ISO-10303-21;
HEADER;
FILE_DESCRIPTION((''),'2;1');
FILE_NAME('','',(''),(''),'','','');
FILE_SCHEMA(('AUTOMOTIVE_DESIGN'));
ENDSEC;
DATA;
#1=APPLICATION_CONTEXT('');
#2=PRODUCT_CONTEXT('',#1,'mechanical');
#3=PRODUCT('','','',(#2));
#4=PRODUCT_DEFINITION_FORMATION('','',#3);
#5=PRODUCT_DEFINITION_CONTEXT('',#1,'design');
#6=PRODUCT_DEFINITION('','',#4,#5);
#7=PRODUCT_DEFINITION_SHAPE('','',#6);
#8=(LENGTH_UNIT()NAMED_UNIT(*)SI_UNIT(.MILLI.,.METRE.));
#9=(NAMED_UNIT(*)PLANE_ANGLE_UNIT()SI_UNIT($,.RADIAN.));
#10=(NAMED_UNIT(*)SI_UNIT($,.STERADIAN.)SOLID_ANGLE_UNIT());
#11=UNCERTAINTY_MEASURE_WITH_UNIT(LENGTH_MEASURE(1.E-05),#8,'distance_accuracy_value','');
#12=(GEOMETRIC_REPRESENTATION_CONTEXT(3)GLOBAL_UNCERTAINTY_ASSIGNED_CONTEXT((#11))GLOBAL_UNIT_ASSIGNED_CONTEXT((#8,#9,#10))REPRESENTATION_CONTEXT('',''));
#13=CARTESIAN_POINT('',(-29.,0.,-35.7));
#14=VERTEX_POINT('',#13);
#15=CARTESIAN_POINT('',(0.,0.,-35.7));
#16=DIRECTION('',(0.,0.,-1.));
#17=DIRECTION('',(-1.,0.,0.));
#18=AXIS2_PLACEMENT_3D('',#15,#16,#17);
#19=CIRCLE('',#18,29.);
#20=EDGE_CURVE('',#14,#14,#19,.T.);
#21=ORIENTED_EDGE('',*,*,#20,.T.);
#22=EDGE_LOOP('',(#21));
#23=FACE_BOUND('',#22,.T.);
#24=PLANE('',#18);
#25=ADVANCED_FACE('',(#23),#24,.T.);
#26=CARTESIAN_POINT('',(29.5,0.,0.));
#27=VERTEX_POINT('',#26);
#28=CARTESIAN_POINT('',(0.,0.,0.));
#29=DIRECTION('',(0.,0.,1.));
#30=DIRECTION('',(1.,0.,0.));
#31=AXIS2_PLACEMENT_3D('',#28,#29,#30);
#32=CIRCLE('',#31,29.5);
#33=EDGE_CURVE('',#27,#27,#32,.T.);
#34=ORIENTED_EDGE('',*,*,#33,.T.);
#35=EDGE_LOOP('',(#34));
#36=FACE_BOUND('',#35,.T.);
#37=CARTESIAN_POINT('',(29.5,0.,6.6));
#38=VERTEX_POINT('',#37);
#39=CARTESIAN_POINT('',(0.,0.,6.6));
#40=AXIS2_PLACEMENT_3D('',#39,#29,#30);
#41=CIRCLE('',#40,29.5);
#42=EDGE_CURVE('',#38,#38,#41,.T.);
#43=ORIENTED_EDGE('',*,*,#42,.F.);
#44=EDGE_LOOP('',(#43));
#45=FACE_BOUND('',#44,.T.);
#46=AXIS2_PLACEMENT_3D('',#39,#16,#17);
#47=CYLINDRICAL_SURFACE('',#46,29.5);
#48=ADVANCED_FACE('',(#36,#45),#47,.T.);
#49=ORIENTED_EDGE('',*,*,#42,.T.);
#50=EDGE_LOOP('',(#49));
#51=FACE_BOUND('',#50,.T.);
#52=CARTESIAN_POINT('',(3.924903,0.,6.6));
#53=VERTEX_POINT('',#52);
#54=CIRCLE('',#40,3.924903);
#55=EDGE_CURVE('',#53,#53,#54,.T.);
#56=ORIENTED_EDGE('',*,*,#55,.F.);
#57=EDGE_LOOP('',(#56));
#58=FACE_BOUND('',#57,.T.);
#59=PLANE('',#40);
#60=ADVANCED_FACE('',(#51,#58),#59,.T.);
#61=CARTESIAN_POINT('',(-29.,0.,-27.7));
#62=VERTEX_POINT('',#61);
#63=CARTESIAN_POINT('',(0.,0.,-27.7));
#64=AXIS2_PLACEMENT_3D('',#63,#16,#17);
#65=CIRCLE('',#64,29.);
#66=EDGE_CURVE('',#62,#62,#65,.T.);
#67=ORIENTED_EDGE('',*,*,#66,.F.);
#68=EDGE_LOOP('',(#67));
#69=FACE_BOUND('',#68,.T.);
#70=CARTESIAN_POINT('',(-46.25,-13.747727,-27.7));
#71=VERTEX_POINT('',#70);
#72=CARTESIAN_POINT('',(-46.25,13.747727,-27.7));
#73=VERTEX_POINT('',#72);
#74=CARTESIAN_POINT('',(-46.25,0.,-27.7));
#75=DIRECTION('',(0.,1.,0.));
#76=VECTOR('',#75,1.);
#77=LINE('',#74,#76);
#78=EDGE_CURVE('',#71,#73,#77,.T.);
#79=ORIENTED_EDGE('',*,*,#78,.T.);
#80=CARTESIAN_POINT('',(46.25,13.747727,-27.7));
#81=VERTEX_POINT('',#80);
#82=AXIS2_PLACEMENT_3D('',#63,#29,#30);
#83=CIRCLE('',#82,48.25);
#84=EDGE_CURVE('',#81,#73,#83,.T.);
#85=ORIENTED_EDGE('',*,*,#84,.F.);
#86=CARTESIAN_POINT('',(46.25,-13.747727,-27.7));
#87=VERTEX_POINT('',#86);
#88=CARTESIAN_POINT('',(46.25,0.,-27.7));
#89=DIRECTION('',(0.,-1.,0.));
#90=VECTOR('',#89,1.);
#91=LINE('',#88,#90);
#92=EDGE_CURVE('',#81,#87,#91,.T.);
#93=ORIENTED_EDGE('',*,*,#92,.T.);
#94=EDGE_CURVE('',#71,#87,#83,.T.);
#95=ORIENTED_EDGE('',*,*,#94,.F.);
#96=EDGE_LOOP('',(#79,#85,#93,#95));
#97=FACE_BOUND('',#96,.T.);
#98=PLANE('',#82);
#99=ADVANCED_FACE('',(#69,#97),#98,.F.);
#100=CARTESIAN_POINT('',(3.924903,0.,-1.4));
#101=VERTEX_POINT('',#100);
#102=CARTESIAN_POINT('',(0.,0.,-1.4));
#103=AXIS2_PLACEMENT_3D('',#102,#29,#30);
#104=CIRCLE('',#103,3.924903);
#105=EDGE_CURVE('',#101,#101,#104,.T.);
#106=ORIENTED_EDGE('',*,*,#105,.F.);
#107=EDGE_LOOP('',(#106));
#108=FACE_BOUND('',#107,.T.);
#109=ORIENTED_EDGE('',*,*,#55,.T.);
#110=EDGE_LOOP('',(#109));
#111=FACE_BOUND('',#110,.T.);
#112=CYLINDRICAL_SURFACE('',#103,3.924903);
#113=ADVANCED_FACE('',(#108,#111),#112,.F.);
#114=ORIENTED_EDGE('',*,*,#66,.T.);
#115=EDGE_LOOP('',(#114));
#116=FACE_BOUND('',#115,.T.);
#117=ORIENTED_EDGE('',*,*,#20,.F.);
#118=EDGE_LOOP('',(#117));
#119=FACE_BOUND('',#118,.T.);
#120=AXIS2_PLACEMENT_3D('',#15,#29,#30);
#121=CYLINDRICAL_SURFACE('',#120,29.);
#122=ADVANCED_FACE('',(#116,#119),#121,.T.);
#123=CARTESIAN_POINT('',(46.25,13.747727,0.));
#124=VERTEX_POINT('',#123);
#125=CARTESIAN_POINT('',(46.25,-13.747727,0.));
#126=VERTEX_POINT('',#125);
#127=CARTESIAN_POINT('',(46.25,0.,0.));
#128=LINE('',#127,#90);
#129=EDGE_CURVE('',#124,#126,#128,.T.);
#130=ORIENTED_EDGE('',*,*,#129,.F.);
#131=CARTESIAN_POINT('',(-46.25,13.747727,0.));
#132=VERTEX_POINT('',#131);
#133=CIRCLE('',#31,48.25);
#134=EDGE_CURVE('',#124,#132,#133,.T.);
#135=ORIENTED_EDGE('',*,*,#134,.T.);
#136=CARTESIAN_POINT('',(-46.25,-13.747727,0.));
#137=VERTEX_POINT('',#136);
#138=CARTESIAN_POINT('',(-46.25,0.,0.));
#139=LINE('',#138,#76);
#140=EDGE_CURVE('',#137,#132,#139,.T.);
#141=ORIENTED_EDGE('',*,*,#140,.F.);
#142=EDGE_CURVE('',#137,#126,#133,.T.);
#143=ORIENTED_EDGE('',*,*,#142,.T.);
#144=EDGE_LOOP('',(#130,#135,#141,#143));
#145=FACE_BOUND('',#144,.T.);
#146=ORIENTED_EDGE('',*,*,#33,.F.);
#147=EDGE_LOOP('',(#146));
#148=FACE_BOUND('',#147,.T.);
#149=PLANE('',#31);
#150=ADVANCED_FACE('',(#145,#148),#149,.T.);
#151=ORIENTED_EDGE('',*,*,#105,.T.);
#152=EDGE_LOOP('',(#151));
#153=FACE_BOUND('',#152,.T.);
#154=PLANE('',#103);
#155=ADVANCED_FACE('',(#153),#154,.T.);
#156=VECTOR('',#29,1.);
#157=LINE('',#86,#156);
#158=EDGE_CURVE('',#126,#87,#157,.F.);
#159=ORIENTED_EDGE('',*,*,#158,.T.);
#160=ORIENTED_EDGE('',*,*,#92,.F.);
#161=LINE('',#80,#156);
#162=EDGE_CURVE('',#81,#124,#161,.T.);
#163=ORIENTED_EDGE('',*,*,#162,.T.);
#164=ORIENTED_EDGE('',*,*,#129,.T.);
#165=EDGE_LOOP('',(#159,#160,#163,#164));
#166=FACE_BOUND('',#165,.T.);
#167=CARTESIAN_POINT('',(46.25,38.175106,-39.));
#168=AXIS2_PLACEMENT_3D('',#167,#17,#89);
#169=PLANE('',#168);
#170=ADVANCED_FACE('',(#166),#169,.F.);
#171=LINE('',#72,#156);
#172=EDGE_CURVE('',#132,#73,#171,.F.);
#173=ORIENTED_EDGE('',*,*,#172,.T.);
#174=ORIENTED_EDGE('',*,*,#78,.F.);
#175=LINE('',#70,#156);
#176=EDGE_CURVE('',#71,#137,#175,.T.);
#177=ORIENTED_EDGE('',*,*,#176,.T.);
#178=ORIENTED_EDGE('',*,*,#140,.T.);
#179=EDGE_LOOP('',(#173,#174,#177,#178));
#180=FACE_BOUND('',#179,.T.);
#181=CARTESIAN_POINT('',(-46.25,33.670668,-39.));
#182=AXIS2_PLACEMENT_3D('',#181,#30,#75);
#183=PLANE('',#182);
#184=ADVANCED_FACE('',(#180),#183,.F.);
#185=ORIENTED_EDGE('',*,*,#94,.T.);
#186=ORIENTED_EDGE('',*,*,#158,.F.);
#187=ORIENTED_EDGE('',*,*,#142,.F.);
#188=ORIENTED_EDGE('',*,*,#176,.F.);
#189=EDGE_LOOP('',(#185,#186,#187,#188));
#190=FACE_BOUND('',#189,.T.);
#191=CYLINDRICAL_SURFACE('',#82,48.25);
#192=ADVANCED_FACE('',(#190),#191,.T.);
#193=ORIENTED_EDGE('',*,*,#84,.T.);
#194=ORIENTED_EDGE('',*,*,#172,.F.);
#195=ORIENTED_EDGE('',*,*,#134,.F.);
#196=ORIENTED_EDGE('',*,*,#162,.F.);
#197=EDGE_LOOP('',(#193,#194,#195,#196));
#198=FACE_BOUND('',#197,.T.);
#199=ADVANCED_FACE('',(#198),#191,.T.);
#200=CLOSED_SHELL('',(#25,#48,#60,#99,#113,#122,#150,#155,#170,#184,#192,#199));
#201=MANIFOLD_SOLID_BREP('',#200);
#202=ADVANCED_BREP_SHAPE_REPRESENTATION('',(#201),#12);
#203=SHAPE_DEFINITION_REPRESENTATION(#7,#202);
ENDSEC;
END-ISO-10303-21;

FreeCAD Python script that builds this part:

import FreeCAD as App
import Part
import Sketcher

V = App.Vector
Q = App.Units.Quantity

doc = App.newDocument("Part")
body = doc.addObject("PartDesign::Body", "Body")

sketch1 = body.newObject("Sketcher::SketchObject", "Sketch")
sketch1.AttachmentSupport = (doc.getObject("XY_Plane"), [""])
sketch1.MapMode = "FlatFace"
sketch1.addGeometry(Part.Circle(V(0, 0, 0), V(0, 0, 1), 48), False)
sketch1.addConstraint([
    Sketcher.Constraint("Coincident", 0, 3, -1, 1),
    Sketcher.Constraint("Diameter", 0, Q("96.5 mm")),
])
pad1 = body.newObject("PartDesign::Pad", "Pad")
pad1.Profile = sketch1
pad1.Length = 27.7
pad1.Reversed = True

sketch2 = body.newObject("Sketcher::SketchObject", "Sketch001")
sketch2.AttachmentSupport = (doc.getObject("XY_Plane"), [""])
sketch2.MapMode = "FlatFace"
sketch2.addGeometry(Part.Circle(V(0, 0, 0), V(0, 0, 1), 30), False)
sketch2.addConstraint([
    Sketcher.Constraint("Coincident", 0, 3, -1, 1),
    Sketcher.Constraint("Diameter", 0, Q("59 mm")),
])
pad2 = body.newObject("PartDesign::Pad", "Pad001")
pad2.Profile = sketch2
pad2.Length = 6.6

sketch3 = body.newObject("Sketcher::SketchObject", "Sketch002")
sketch3.AttachmentSupport = (doc.getObject("XY_Plane"), [""])
sketch3.MapMode = "FlatFace"
sketch3.AttachmentOffset = App.Placement(V(0, 0, -27.7), App.Rotation())
sketch3.addGeometry(Part.Circle(V(0, 0, 0), V(0, 0, 1), 29), False)
sketch3.addConstraint([
    Sketcher.Constraint("Coincident", 0, 3, -1, 1),
    Sketcher.Constraint("Diameter", 0, Q("58 mm")),
])
pad3 = body.newObject("PartDesign::Pad", "Pad002")
pad3.Profile = sketch3
pad3.Length = 8
pad3.Reversed = True

sketch4 = body.newObject("Sketcher::SketchObject", "Sketch003")
sketch4.AttachmentSupport = (doc.getObject("XY_Plane"), [""])
sketch4.MapMode = "FlatFace"
sketch4.AttachmentOffset = App.Placement(V(0, 0, 6.6), App.Rotation())
sketch4.addGeometry(Part.Circle(V(0, 0, 0), V(0, 0, 1), 3.9), False)
sketch4.addConstraint([
    Sketcher.Constraint("Coincident", 0, 3, -1, 1),
    Sketcher.Constraint("Diameter", 0, Q("7.849807 mm")),
])
pocket1 = body.newObject("PartDesign::Pocket", "Pocket")
pocket1.Profile = sketch4
pocket1.Length = 8

sketch5 = body.newObject("Sketcher::SketchObject", "Sketch004")
sketch5.AttachmentSupport = (doc.getObject("XY_Plane"), [""])
sketch5.MapMode = "FlatFace"
sketch5.addGeometry([
    Part.LineSegment(V(-60, 34, 0), V(-60, -32, 0)),
    Part.LineSegment(V(-60, -32, 0), V(-46, -32, 0)),
    Part.LineSegment(V(-46, -32, 0), V(-46, 34, 0)),
    Part.LineSegment(V(-46, 34, 0), V(-60, 34, 0)),
    Part.LineSegment(V(46, 38, 0), V(46, -39, 0)),
    Part.LineSegment(V(46, -39, 0), V(66, -39, 0)),
    Part.LineSegment(V(66, -39, 0), V(66, 38, 0)),
    Part.LineSegment(V(66, 38, 0), V(46, 38, 0)),
], False)
sketch5.addConstraint([
    Sketcher.Constraint("Coincident", 0, 2, 1, 1),
    Sketcher.Constraint("Coincident", 1, 2, 2, 1),
    Sketcher.Constraint("Coincident", 2, 2, 3, 1),
    Sketcher.Constraint("Coincident", 3, 2, 0, 1),
    Sketcher.Constraint("Coincident", 4, 2, 5, 1),
    Sketcher.Constraint("Coincident", 5, 2, 6, 1),
    Sketcher.Constraint("Coincident", 6, 2, 7, 1),
    Sketcher.Constraint("Coincident", 7, 2, 4, 1),
    Sketcher.Constraint("Vertical", 0),
    Sketcher.Constraint("Horizontal", 1),
    Sketcher.Constraint("Vertical", 2),
    Sketcher.Constraint("Horizontal", 3),
    Sketcher.Constraint("Vertical", 4),
    Sketcher.Constraint("Horizontal", 5),
    Sketcher.Constraint("Vertical", 6),
    Sketcher.Constraint("Horizontal", 7),
    Sketcher.Constraint("DistanceX", 1, 2, 4, 2, Q("92.5 mm")),
    Sketcher.Constraint("DistanceX", 1, 2, -1, 1, Q("46.25 mm")),
    Sketcher.Constraint("DistanceY", 4, 2, 4, 1, Q("76.725581 mm")),
    Sketcher.Constraint("DistanceX", 1, 1, 1, 2, Q("13.813608 mm")),
    Sketcher.Constraint("DistanceX", 5, 1, 5, 2, Q("19.669376 mm")),
    Sketcher.Constraint("DistanceY", 0, 2, 0, 1, Q("65.464488 mm")),
    Sketcher.Constraint("DistanceY", 0, 2, -1, 1, Q("31.79382 mm")),
    Sketcher.Constraint("DistanceY", 4, 2, -1, 1, Q("38.550475 mm")),
])
pocket2 = body.newObject("PartDesign::Pocket", "Pocket001")
pocket2.Profile = sketch5
pocket2.Length = 39

doc.recompute()
